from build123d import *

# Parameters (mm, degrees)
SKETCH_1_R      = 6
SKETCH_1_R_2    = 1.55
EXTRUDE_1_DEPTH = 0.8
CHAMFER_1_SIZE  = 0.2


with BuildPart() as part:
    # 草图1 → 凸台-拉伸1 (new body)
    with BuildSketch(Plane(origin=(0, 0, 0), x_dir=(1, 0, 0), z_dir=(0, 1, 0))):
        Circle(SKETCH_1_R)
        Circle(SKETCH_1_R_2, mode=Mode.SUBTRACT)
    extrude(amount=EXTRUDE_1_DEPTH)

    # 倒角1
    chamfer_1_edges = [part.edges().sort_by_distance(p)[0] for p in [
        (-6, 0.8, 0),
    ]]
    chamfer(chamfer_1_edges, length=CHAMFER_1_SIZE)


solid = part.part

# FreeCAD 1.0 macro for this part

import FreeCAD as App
import Part
import Sketcher
from FreeCAD import Vector
Q = App.Units.Quantity


def edges_at(feature, points):
    """Names of the edges that pass closest to the given points."""
    edges = feature.Shape.Edges
    near = lambda p: min(range(len(edges)), key=lambda i: edges[i].distToShape(Part.Vertex(*p))[0])
    return sorted({f"Edge{near(p) + 1}" for p in points})

doc = App.newDocument("Part")
body = doc.addObject("PartDesign::Body", "Body")

sketch1 = body.newObject("Sketcher::SketchObject", "Sketch")
sketch1.AttachmentSupport = (doc.getObject("XZ_Plane"), [""])
sketch1.MapMode = "FlatFace"
sketch1.addGeometry([
    Part.Circle(Vector(0, 0, 0), Vector(0, 0, 1), 6),
    Part.Circle(Vector(0, 0, 0), Vector(0, 0, 1), 1.55),
], False)
sketch1.addConstraint([
    Sketcher.Constraint("Coincident", 0, 3, -1, 1),
    Sketcher.Constraint("Coincident", 1, 3, -1, 1),
    Sketcher.Constraint("Diameter", 0, Q("12 mm")),
    Sketcher.Constraint("Diameter", 1, Q("3.1 mm")),
])
pad1 = body.newObject("PartDesign::Pad", "Pad")
pad1.Profile = sketch1
pad1.Length = 0.8
pad1.Reversed = True
doc.recompute()

chamfer = body.newObject("PartDesign::Chamfer", "Chamfer")
chamfer.Base = (pad1, edges_at(pad1, [(-6, 0.8, 0)]))
chamfer.Size = 0.2

doc.recompute()
